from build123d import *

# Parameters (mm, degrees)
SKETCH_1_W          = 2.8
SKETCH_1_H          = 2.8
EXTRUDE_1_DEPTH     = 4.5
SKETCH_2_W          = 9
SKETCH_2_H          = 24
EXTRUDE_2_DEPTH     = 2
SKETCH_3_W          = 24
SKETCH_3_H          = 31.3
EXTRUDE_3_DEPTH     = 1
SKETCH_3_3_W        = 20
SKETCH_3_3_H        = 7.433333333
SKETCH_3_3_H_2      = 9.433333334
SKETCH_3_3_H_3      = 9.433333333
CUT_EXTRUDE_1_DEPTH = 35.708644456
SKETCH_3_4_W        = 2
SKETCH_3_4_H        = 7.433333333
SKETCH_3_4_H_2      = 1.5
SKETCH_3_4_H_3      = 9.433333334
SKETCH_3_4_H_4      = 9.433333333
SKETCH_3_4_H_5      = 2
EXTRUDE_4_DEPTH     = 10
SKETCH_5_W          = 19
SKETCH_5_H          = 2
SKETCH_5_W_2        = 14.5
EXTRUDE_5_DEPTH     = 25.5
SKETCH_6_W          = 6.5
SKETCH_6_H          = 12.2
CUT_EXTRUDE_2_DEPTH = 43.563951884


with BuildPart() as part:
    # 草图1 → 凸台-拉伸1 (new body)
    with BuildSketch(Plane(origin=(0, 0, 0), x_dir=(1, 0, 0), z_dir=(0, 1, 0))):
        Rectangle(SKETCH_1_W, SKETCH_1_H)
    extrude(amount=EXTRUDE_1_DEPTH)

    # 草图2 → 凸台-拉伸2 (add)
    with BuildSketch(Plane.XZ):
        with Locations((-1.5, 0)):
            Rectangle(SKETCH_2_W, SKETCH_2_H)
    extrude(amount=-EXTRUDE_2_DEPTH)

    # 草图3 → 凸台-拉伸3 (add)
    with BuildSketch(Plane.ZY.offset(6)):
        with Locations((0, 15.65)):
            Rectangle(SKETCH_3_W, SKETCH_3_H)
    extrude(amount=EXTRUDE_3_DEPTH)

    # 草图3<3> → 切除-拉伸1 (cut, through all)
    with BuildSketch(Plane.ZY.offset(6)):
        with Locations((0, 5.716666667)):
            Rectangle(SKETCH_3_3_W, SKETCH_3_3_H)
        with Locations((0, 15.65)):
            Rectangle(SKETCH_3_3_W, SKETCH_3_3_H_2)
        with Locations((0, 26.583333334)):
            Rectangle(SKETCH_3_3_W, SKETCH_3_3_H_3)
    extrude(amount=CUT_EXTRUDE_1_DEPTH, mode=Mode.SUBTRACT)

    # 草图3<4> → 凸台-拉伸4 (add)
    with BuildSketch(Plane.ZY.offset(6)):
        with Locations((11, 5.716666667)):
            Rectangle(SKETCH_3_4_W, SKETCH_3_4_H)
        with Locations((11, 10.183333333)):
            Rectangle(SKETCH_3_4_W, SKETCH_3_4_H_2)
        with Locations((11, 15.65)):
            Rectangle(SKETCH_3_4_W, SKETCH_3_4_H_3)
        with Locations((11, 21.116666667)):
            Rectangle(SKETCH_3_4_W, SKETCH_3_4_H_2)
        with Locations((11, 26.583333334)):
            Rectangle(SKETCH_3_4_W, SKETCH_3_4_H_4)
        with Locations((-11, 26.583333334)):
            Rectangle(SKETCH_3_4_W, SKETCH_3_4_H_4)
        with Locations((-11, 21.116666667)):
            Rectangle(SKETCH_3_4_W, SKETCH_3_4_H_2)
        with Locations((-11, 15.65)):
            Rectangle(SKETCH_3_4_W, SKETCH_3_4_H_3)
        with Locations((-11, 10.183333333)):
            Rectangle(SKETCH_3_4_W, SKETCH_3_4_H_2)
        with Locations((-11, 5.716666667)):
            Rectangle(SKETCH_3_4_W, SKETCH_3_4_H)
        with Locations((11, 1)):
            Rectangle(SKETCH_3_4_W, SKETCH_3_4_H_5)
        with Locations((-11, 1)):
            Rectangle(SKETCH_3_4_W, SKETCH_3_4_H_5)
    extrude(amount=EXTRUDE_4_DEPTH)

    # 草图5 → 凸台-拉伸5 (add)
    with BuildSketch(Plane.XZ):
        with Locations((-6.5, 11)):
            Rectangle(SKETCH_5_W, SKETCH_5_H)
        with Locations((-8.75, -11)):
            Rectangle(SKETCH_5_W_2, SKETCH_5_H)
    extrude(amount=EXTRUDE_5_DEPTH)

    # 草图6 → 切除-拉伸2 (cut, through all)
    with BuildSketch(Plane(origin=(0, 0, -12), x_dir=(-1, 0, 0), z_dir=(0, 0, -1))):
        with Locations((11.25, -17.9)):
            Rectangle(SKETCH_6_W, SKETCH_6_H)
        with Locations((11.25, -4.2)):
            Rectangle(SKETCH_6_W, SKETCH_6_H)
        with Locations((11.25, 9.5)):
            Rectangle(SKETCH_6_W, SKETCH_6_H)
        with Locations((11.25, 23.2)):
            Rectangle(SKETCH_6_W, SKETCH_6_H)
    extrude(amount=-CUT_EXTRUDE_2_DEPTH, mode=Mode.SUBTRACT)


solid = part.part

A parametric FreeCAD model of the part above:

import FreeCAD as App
import Part
import Sketcher
from FreeCAD import Vector
Q = App.Units.Quantity

doc = App.newDocument("Part")
params = doc.addObject("Spreadsheet::Sheet", "Params")
for row, (alias, value) in enumerate([
    ("sketch1_width", "2.8 mm"),
    ("pad1_length", "4.5 mm"),
    ("sketch2_width", "9 mm"),
    ("sketch2_height", "24 mm"),
    ("pad2_length", "2 mm"),
    ("sketch3_height", "24 mm"),
    ("sketch3_width", "31.3 mm"),
    ("pad3_length", "1 mm"),
    ("sketch4_height", "20 mm"),
    ("sketch5_height", "2 mm"),
    ("sketch5_width", "31.3 mm"),
    ("pad4_length", "10 mm"),
    ("sketch6_width", "19 mm"),
    ("sketch6_height", "2 mm"),
    ("sketch6_width2", "14.5 mm"),
    ("pad5_length", "25.5 mm"),
    ("sketch7_width", "6.5 mm"),
    ("sketch7_height", "12.2 mm"),
], start=1):
    params.set(f"A{row}", alias)
    params.set(f"B{row}", "=" + value)
    params.setAlias(f"B{row}", alias)

body = doc.addObject("PartDesign::Body", "Body")

# Sketch on XZ plane
sketch1 = body.newObject("Sketcher::SketchObject", "Sketch")
sketch1.AttachmentSupport = (doc.getObject("XZ_Plane"), [""])
sketch1.MapMode = "FlatFace"
sketch1.addGeometry(Part.LineSegment(Vector(-1.4, -1.4, 0), Vector(-1.4, 1.4, 0)), False)
sketch1.addGeometry(Part.LineSegment(Vector(-1.4, 1.4, 0), Vector(1.4, 1.4, 0)), False)
sketch1.addGeometry(Part.LineSegment(Vector(1.4, 1.4, 0), Vector(1.4, -1.4, 0)), False)
sketch1.addGeometry(Part.LineSegment(Vector(1.4, -1.4, 0), Vector(-1.4, -1.4, 0)), False)
sketch1.addConstraint(Sketcher.Constraint("Coincident", 0, 2, 1, 1))
sketch1.addConstraint(Sketcher.Constraint("Coincident", 1, 2, 2, 1))
sketch1.addConstraint(Sketcher.Constraint("Coincident", 2, 2, 3, 1))
sketch1.addConstraint(Sketcher.Constraint("Coincident", 3, 2, 0, 1))
sketch1.addConstraint(Sketcher.Constraint("Vertical", 0))
sketch1.addConstraint(Sketcher.Constraint("Horizontal", 1))
sketch1.addConstraint(Sketcher.Constraint("Vertical", 2))
sketch1.addConstraint(Sketcher.Constraint("Horizontal", 3))
sketch1.addConstraint(Sketcher.Constraint("Symmetric", 0, 2, 2, 2, -1, 1))
sketch1.addConstraint(Sketcher.Constraint("Equal", 3, 0))
sketch1.addConstraint(Sketcher.Constraint("DistanceX", 1, 1, 1, 2, Q("2.8 mm")))
sketch1.setExpression("Constraints[10]", "Params.sketch1_width")
pad1 = body.newObject("PartDesign::Pad", "Pad")
pad1.Profile = sketch1
pad1.setExpression("Length", "Params.pad1_length")
pad1.Reversed = True

# Sketch on XZ plane
sketch2 = body.newObject("Sketcher::SketchObject", "Sketch001")
sketch2.AttachmentSupport = (doc.getObject("XZ_Plane"), [""])
sketch2.MapMode = "FlatFace"
sketch2.addGeometry(Part.LineSegment(Vector(-6, 12, 0), Vector(-6, -12, 0)), False)
sketch2.addGeometry(Part.LineSegment(Vector(-6, -12, 0), Vector(3, -12, 0)), False)
sketch2.addGeometry(Part.LineSegment(Vector(3, -12, 0), Vector(3, 12, 0)), False)
sketch2.addGeometry(Part.LineSegment(Vector(3, 12, 0), Vector(-6, 12, 0)), False)
sketch2.addConstraint(Sketcher.Constraint("Coincident", 0, 2, 1, 1))
sketch2.addConstraint(Sketcher.Constraint("Coincident", 1, 2, 2, 1))
sketch2.addConstraint(Sketcher.Constraint("Coincident", 2, 2, 3, 1))
sketch2.addConstraint(Sketcher.Constraint("Coincident", 3, 2, 0, 1))
sketch2.addConstraint(Sketcher.Constraint("Vertical", 0))
sketch2.addConstraint(Sketcher.Constraint("Horizontal", 1))
sketch2.addConstraint(Sketcher.Constraint("Vertical", 2))
sketch2.addConstraint(Sketcher.Constraint("Horizontal", 3))
sketch2.addConstraint(Sketcher.Constraint("DistanceX", 1, 1, 1, 2, Q("9 mm")))
sketch2.addConstraint(Sketcher.Constraint("DistanceY", 0, 2, 0, 1, Q("24 mm")))
sketch2.addConstraint(Sketcher.Constraint("DistanceX", 0, 2, -1, 1, Q("6 mm")))
sketch2.addConstraint(Sketcher.Constraint("DistanceY", 0, 2, -1, 1, Q("12 mm")))
sketch2.setExpression("Constraints[8]", "Params.sketch2_width")
sketch2.setExpression("Constraints[9]", "Params.sketch2_height")
pad2 = body.newObject("PartDesign::Pad", "Pad001")
pad2.Profile = sketch2
pad2.setExpression("Length", "Params.pad2_length")
pad2.Reversed = True

# Sketch on YZ plane
sketch3 = body.newObject("Sketcher::SketchObject", "Sketch002")
sketch3.AttachmentSupport = (doc.getObject("YZ_Plane"), [""])
sketch3.MapMode = "FlatFace"
sketch3.AttachmentOffset = App.Placement(Vector(0, 0, -6), App.Rotation())
sketch3.addGeometry(Part.LineSegment(Vector(31.3, -12, 0), Vector(0, -12, 0)), False)
sketch3.addGeometry(Part.LineSegment(Vector(0, -12, 0), Vector(0, 12, 0)), False)
sketch3.addGeometry(Part.LineSegment(Vector(0, 12, 0), Vector(31.3, 12, 0)), False)
sketch3.addGeometry(Part.LineSegment(Vector(31.3, 12, 0), Vector(31.3, -12, 0)), False)
sketch3.addConstraint(Sketcher.Constraint("Coincident", 0, 2, 1, 1))
sketch3.addConstraint(Sketcher.Constraint("Coincident", 1, 2, 2, 1))
sketch3.addConstraint(Sketcher.Constraint("Coincident", 2, 2, 3, 1))
sketch3.addConstraint(Sketcher.Constraint("Coincident", 3, 2, 0, 1))
sketch3.addConstraint(Sketcher.Constraint("Horizontal", 0))
sketch3.addConstraint(Sketcher.Constraint("Vertical", 1))
sketch3.addConstraint(Sketcher.Constraint("Horizontal", 2))
sketch3.addConstraint(Sketcher.Constraint("Vertical", 3))
sketch3.addConstraint(Sketcher.Constraint("Symmetric", 0, 2, 1, 2, -1, 1))
sketch3.addConstraint(Sketcher.Constraint("DistanceY", 1, 1, 1, 2, Q("24 mm")))
sketch3.addConstraint(Sketcher.Constraint("DistanceX", 0, 2, 0, 1, Q("31.3 mm")))
sketch3.setExpression("Constraints[9]", "Params.sketch3_height")
sketch3.setExpression("Constraints[10]", "Params.sketch3_width")
pad3 = body.newObject("PartDesign::Pad", "Pad002")
pad3.Profile = sketch3
pad3.setExpression("Length", "Params.pad3_length")
pad3.Reversed = True

# Sketch on YZ plane
sketch4 = body.newObject("Sketcher::SketchObject", "Sketch003")
sketch4.AttachmentSupport = (doc.getObject("YZ_Plane"), [""])
sketch4.MapMode = "FlatFace"
sketch4.AttachmentOffset = App.Placement(Vector(0, 0, -6), App.Rotation())
sketch4.addGeometry(Part.LineSegment(Vector(9.433333, -10, 0), Vector(2, -10, 0)), False)
sketch4.addGeometry(Part.LineSegment(Vector(2, -10, 0), Vector(2, 10, 0)), False)
sketch4.addGeometry(Part.LineSegment(Vector(2, 10, 0), Vector(9.433333, 10, 0)), False)
sketch4.addGeometry(Part.LineSegment(Vector(9.433333, 10, 0), Vector(9.433333, -10, 0)), False)
sketch4.addGeometry(Part.LineSegment(Vector(20.366667, -10, 0), Vector(10.933333, -10, 0)), False)
sketch4.addGeometry(Part.LineSegment(Vector(10.933333, -10, 0), Vector(10.933333, 10, 0)), False)
sketch4.addGeometry(Part.LineSegment(Vector(10.933333, 10, 0), Vector(20.366667, 10, 0)), False)
sketch4.addGeometry(Part.LineSegment(Vector(20.366667, 10, 0), Vector(20.366667, -10, 0)), False)
sketch4.addGeometry(Part.LineSegment(Vector(31.3, -10, 0), Vector(21.866667, -10, 0)), False)
sketch4.addGeometry(Part.LineSegment(Vector(21.866667, -10, 0), Vector(21.866667, 10, 0)), False)
sketch4.addGeometry(Part.LineSegment(Vector(21.866667, 10, 0), Vector(31.3, 10, 0)), False)
sketch4.addGeometry(Part.LineSegment(Vector(31.3, 10, 0), Vector(31.3, -10, 0)), False)
sketch4.addConstraint(Sketcher.Constraint("Coincident", 0, 2, 1, 1))
sketch4.addConstraint(Sketcher.Constraint("Coincident", 1, 2, 2, 1))
sketch4.addConstraint(Sketcher.Constraint("Coincident", 2, 2, 3, 1))
sketch4.addConstraint(Sketcher.Constraint("Coincident", 3, 2, 0, 1))
sketch4.addConstraint(Sketcher.Constraint("Coincident", 4, 2, 5, 1))
sketch4.addConstraint(Sketcher.Constraint("Coincident", 5, 2, 6, 1))
sketch4.addConstraint(Sketcher.Constraint("Coincident", 6, 2, 7, 1))
sketch4.addConstraint(Sketcher.Constraint("Coincident", 7, 2, 4, 1))
sketch4.addConstraint(Sketcher.Constraint("Coincident", 8, 2, 9, 1))
sketch4.addConstraint(Sketcher.Constraint("Coincident", 9, 2, 10, 1))
sketch4.addConstraint(Sketcher.Constraint("Coincident", 10, 2, 11, 1))
sketch4.addConstraint(Sketcher.Constraint("Coincident", 11, 2, 8, 1))
sketch4.addConstraint(Sketcher.Constraint("Horizontal", 0))
sketch4.addConstraint(Sketcher.Constraint("Vertical", 1))
sketch4.addConstraint(Sketcher.Constraint("Horizontal", 2))
sketch4.addConstraint(Sketcher.Constraint("Vertical", 3))
sketch4.addConstraint(Sketcher.Constraint("Horizontal", 4))
sketch4.addConstraint(Sketcher.Constraint("Vertical", 5))
sketch4.addConstraint(Sketcher.Constraint("Horizontal", 6))
sketch4.addConstraint(Sketcher.Constraint("Vertical", 7))
sketch4.addConstraint(Sketcher.Constraint("Horizontal", 8))
sketch4.addConstraint(Sketcher.Constraint("Vertical", 9))
sketch4.addConstraint(Sketcher.Constraint("Horizontal", 10))
sketch4.addConstraint(Sketcher.Constraint("Vertical", 11))
sketch4.addConstraint(Sketcher.Constraint("Horizontal", 3, 2, 4, 2))
sketch4.addConstraint(Sketcher.Constraint("Horizontal", 2, 2, 5, 2))
sketch4.addConstraint(Sketcher.Constraint("Horizontal", 7, 2, 8, 2))
sketch4.addConstraint(Sketcher.Constraint("Horizontal", 6, 2, 9, 2))
sketch4.addConstraint(Sketcher.Constraint("Equal", 6, 8))
sketch4.addConstraint(Sketcher.Constraint("DistanceY", 1, 1, 1, 2, Q("20 mm")))
sketch4.addConstraint(Sketcher.Constraint("DistanceX", -1, 1, 0, 2, Q("2 mm")))
sketch4.addConstraint(Sketcher.Constraint("DistanceY", 0, 2, -1, 1, Q("10 mm")))
sketch4.addConstraint(Sketcher.Constraint("DistanceX", -1, 1, 10, 2, Q("31.3 mm")))
sketch4.addConstraint(Sketcher.Constraint("DistanceX", 3, 2, 4, 2, Q("1.5 mm")))
sketch4.addConstraint(Sketcher.Constraint("DistanceX", 7, 2, 8, 2, Q("1.5 mm")))
sketch4.addConstraint(Sketcher.Constraint("DistanceX", 0, 2, 0, 1, Q("7.433333 mm")))
sketch4.setExpression("Constraints[29]", "Params.sketch4_height")
pocket1 = body.newObject("PartDesign::Pocket", "Pocket")
pocket1.Profile = sketch4
pocket1.Type = "ThroughAll"

# Sketch on YZ plane
sketch5 = body.newObject("Sketcher::SketchObject", "Sketch004")
sketch5.AttachmentSupport = (doc.getObject("YZ_Plane"), [""])
sketch5.MapMode = "FlatFace"
sketch5.AttachmentOffset = App.Placement(Vector(0, 0, -6), App.Rotation())
sketch5.addGeometry(Part.LineSegment(Vector(31.3, 12, 0), Vector(31.3, 10, 0)), False)
sketch5.addGeometry(Part.LineSegment(Vector(31.3, 10, 0), Vector(0, 10, 0)), False)
sketch5.addGeometry(Part.LineSegment(Vector(0, 10, 0), Vector(0, 12, 0)), False)
sketch5.addGeometry(Part.LineSegment(Vector(0, 12, 0), Vector(31.3, 12, 0)), False)
sketch5.addGeometry(Part.LineSegment(Vector(31.3, -12, 0), Vector(0, -12, 0)), False)
sketch5.addGeometry(Part.LineSegment(Vector(0, -12, 0), Vector(0, -10, 0)), False)
sketch5.addGeometry(Part.LineSegment(Vector(0, -10, 0), Vector(31.3, -10, 0)), False)
sketch5.addGeometry(Part.LineSegment(Vector(31.3, -10, 0), Vector(31.3, -12, 0)), False)
sketch5.addConstraint(Sketcher.Constraint("Coincident", 0, 2, 1, 1))
sketch5.addConstraint(Sketcher.Constraint("Coincident", 1, 2, 2, 1))
sketch5.addConstraint(Sketcher.Constraint("Coincident", 2, 2, 3, 1))
sketch5.addConstraint(Sketcher.Constraint("Coincident", 3, 2, 0, 1))
sketch5.addConstraint(Sketcher.Constraint("Coincident", 4, 2, 5, 1))
sketch5.addConstraint(Sketcher.Constraint("Coincident", 5, 2, 6, 1))
sketch5.addConstraint(Sketcher.Constraint("Coincident", 6, 2, 7, 1))
sketch5.addConstraint(Sketcher.Constraint("Coincident", 7, 2, 4, 1))
sketch5.addConstraint(Sketcher.Constraint("Vertical", 0))
sketch5.addConstraint(Sketcher.Constraint("Horizontal", 1))
sketch5.addConstraint(Sketcher.Constraint("Vertical", 2))
sketch5.addConstraint(Sketcher.Constraint("Horizontal", 3))
sketch5.addConstraint(Sketcher.Constraint("Horizontal", 4))
sketch5.addConstraint(Sketcher.Constraint("Vertical", 5))
sketch5.addConstraint(Sketcher.Constraint("Horizontal", 6))
sketch5.addConstraint(Sketcher.Constraint("Vertical", 7))
sketch5.addConstraint(Sketcher.Constraint("Symmetric", 2, 2, 4, 2, -1, 1))
sketch5.addConstraint(Sketcher.Constraint("Symmetric", 1, 2, 5, 2, -1))
sketch5.addConstraint(Sketcher.Constraint("Vertical", 3, 2, 6, 2))
sketch5.addConstraint(Sketcher.Constraint("DistanceY", 0, 2, 0, 1, Q("2 mm")))
sketch5.addConstraint(Sketcher.Constraint("DistanceX", 1, 2, 1, 1, Q("31.3 mm")))
sketch5.addConstraint(Sketcher.Constraint("DistanceY", -1, 1, 0, 2, Q("10 mm")))
sketch5.setExpression("Constraints[19]", "Params.sketch5_height")
sketch5.setExpression("Constraints[20]", "Params.sketch5_width")
pad4 = body.newObject("PartDesign::Pad", "Pad003")
pad4.Profile = sketch5
pad4.setExpression("Length", "Params.pad4_length")
pad4.Reversed = True

# Sketch on XZ plane
sketch6 = body.newObject("Sketcher::SketchObject", "Sketch005")
sketch6.AttachmentSupport = (doc.getObject("XZ_Plane"), [""])
sketch6.MapMode = "FlatFace"
sketch6.addGeometry(Part.LineSegment(Vector(-16, 12, 0), Vector(-16, 10, 0)), False)
sketch6.addGeometry(Part.LineSegment(Vector(-16, 10, 0), Vector(3, 10, 0)), False)
sketch6.addGeometry(Part.LineSegment(Vector(3, 10, 0), Vector(3, 12, 0)), False)
sketch6.addGeometry(Part.LineSegment(Vector(3, 12, 0), Vector(-16, 12, 0)), False)
sketch6.addGeometry(Part.LineSegment(Vector(-16, -10, 0), Vector(-16, -12, 0)), False)
sketch6.addGeometry(Part.LineSegment(Vector(-16, -12, 0), Vector(-1.5, -12, 0)), False)
sketch6.addGeometry(Part.LineSegment(Vector(-1.5, -12, 0), Vector(-1.5, -10, 0)), False)
sketch6.addGeometry(Part.LineSegment(Vector(-1.5, -10, 0), Vector(-16, -10, 0)), False)
sketch6.addConstraint(Sketcher.Constraint("Coincident", 0, 2, 1, 1))
sketch6.addConstraint(Sketcher.Constraint("Coincident", 1, 2, 2, 1))
sketch6.addConstraint(Sketcher.Constraint("Coincident", 2, 2, 3, 1))
sketch6.addConstraint(Sketcher.Constraint("Coincident", 3, 2, 0, 1))
sketch6.addConstraint(Sketcher.Constraint("Coincident", 4, 2, 5, 1))
sketch6.addConstraint(Sketcher.Constraint("Coincident", 5, 2, 6, 1))
sketch6.addConstraint(Sketcher.Constraint("Coincident", 6, 2, 7, 1))
sketch6.addConstraint(Sketcher.Constraint("Coincident", 7, 2, 4, 1))
sketch6.addConstraint(Sketcher.Constraint("Vertical", 0))
sketch6.addConstraint(Sketcher.Constraint("Horizontal", 1))
sketch6.addConstraint(Sketcher.Constraint("Vertical", 2))
sketch6.addConstraint(Sketcher.Constraint("Horizontal", 3))
sketch6.addConstraint(Sketcher.Constraint("Vertical", 4))
sketch6.addConstraint(Sketcher.Constraint("Horizontal", 5))
sketch6.addConstraint(Sketcher.Constraint("Vertical", 6))
sketch6.addConstraint(Sketcher.Constraint("Horizontal", 7))
sketch6.addConstraint(Sketcher.Constraint("Symmetric", 3, 2, 4, 2, -1))
sketch6.addConstraint(Sketcher.Constraint("Equal", 2, 4))
sketch6.addConstraint(Sketcher.Constraint("DistanceX", 1, 1, 1, 2, Q("19 mm")))
sketch6.addConstraint(Sketcher.Constraint("DistanceY", 0, 2, 0, 1, Q("2 mm")))
sketch6.addConstraint(Sketcher.Constraint("DistanceX", 5, 1, 5, 2, Q("14.5 mm")))
sketch6.addConstraint(Sketcher.Constraint("DistanceX", 0, 2, -1, 1, Q("16 mm")))
sketch6.addConstraint(Sketcher.Constraint("DistanceY", -1, 1, 0, 2, Q("10 mm")))
sketch6.setExpression("Constraints[18]", "Params.sketch6_width")
sketch6.setExpression("Constraints[19]", "Params.sketch6_height")
sketch6.setExpression("Constraints[20]", "Params.sketch6_width2")
pad5 = body.newObject("PartDesign::Pad", "Pad004")
pad5.Profile = sketch6
pad5.setExpression("Length", "Params.pad5_length")

# Sketch on XY plane
sketch7 = body.newObject("Sketcher::SketchObject", "Sketch006")
sketch7.AttachmentSupport = (doc.getObject("XY_Plane"), [""])
sketch7.MapMode = "FlatFace"
sketch7.AttachmentOffset = App.Placement(Vector(0, 0, -12), App.Rotation())
sketch7.addGeometry(Part.LineSegment(Vector(-8, -11.8, 0), Vector(-8, -24, 0)), False)
sketch7.addGeometry(Part.LineSegment(Vector(-8, -24, 0), Vector(-14.5, -24, 0)), False)
sketch7.addGeometry(Part.LineSegment(Vector(-14.5, -24, 0), Vector(-14.5, -11.8, 0)), False)
sketch7.addGeometry(Part.LineSegment(Vector(-14.5, -11.8, 0), Vector(-8, -11.8, 0)), False)
sketch7.addGeometry(Part.LineSegment(Vector(-8, 1.9, 0), Vector(-8, -10.3, 0)), False)
sketch7.addGeometry(Part.LineSegment(Vector(-8, -10.3, 0), Vector(-14.5, -10.3, 0)), False)
sketch7.addGeometry(Part.LineSegment(Vector(-14.5, -10.3, 0), Vector(-14.5, 1.9, 0)), False)
sketch7.addGeometry(Part.LineSegment(Vector(-14.5, 1.9, 0), Vector(-8, 1.9, 0)), False)
sketch7.addGeometry(Part.LineSegment(Vector(-8, 15.6, 0), Vector(-8, 3.4, 0)), False)
sketch7.addGeometry(Part.LineSegment(Vector(-8, 3.4, 0), Vector(-14.5, 3.4, 0)), False)
sketch7.addGeometry(Part.LineSegment(Vector(-14.5, 3.4, 0), Vector(-14.5, 15.6, 0)), False)
sketch7.addGeometry(Part.LineSegment(Vector(-14.5, 15.6, 0), Vector(-8, 15.6, 0)), False)
sketch7.addGeometry(Part.LineSegment(Vector(-8, 29.3, 0), Vector(-8, 17.1, 0)), False)
sketch7.addGeometry(Part.LineSegment(Vector(-8, 17.1, 0), Vector(-14.5, 17.1, 0)), False)
sketch7.addGeometry(Part.LineSegment(Vector(-14.5, 17.1, 0), Vector(-14.5, 29.3, 0)), False)
sketch7.addGeometry(Part.LineSegment(Vector(-14.5, 29.3, 0), Vector(-8, 29.3, 0)), False)
sketch7.addConstraint(Sketcher.Constraint("Coincident", 0, 2, 1, 1))
sketch7.addConstraint(Sketcher.Constraint("Coincident", 1, 2, 2, 1))
sketch7.addConstraint(Sketcher.Constraint("Coincident", 2, 2, 3, 1))
sketch7.addConstraint(Sketcher.Constraint("Coincident", 3, 2, 0, 1))
sketch7.addConstraint(Sketcher.Constraint("Coincident", 4, 2, 5, 1))
sketch7.addConstraint(Sketcher.Constraint("Coincident", 5, 2, 6, 1))
sketch7.addConstraint(Sketcher.Constraint("Coincident", 6, 2, 7, 1))
sketch7.addConstraint(Sketcher.Constraint("Coincident", 7, 2, 4, 1))
sketch7.addConstraint(Sketcher.Constraint("Coincident", 8, 2, 9, 1))
sketch7.addConstraint(Sketcher.Constraint("Coincident", 9, 2, 10, 1))
sketch7.addConstraint(Sketcher.Constraint("Coincident", 10, 2, 11, 1))
sketch7.addConstraint(Sketcher.Constraint("Coincident", 11, 2, 8, 1))
sketch7.addConstraint(Sketcher.Constraint("Coincident", 12, 2, 13, 1))
sketch7.addConstraint(Sketcher.Constraint("Coincident", 13, 2, 14, 1))
sketch7.addConstraint(Sketcher.Constraint("Coincident", 14, 2, 15, 1))
sketch7.addConstraint(Sketcher.Constraint("Coincident", 15, 2, 12, 1))
sketch7.addConstraint(Sketcher.Constraint("Vertical", 0))
sketch7.addConstraint(Sketcher.Constraint("Horizontal", 1))
sketch7.addConstraint(Sketcher.Constraint("Vertical", 2))
sketch7.addConstraint(Sketcher.Constraint("Horizontal", 3))
sketch7.addConstraint(Sketcher.Constraint("Vertical", 4))
sketch7.addConstraint(Sketcher.Constraint("Horizontal", 5))
sketch7.addConstraint(Sketcher.Constraint("Vertical", 6))
sketch7.addConstraint(Sketcher.Constraint("Horizontal", 7))
sketch7.addConstraint(Sketcher.Constraint("Vertical", 8))
sketch7.addConstraint(Sketcher.Constraint("Horizontal", 9))
sketch7.addConstraint(Sketcher.Constraint("Vertical", 10))
sketch7.addConstraint(Sketcher.Constraint("Horizontal", 11))
sketch7.addConstraint(Sketcher.Constraint("Vertical", 12))
sketch7.addConstraint(Sketcher.Constraint("Horizontal", 13))
sketch7.addConstraint(Sketcher.Constraint("Vertical", 14))
sketch7.addConstraint(Sketcher.Constraint("Horizontal", 15))
sketch7.addConstraint(Sketcher.Constraint("Vertical", 3, 2, 4, 2))
sketch7.addConstraint(Sketcher.Constraint("Vertical", 2, 2, 5, 2))
sketch7.addConstraint(Sketcher.Constraint("Vertical", 7, 2, 8, 2))
sketch7.addConstraint(Sketcher.Constraint("Vertical", 6, 2, 9, 2))
sketch7.addConstraint(Sketcher.Constraint("Vertical", 11, 2, 12, 2))
sketch7.addConstraint(Sketcher.Constraint("Vertical", 10, 2, 13, 2))
sketch7.addConstraint(Sketcher.Constraint("Equal", 2, 4))
sketch7.addConstraint(Sketcher.Constraint("Equal", 6, 8))
sketch7.addConstraint(Sketcher.Constraint("Equal", 10, 12))
sketch7.addConstraint(Sketcher.Constraint("DistanceX", 1, 2, 1, 1, Q("6.5 mm")))
sketch7.addConstraint(Sketcher.Constraint("DistanceY", 0, 2, 0, 1, Q("12.2 mm")))
sketch7.addConstraint(Sketcher.Constraint("DistanceX", 0, 2, -1, 1, Q("8 mm")))
sketch7.addConstraint(Sketcher.Constraint("DistanceY", 0, 2, -1, 1, Q("24 mm")))
sketch7.addConstraint(Sketcher.Constraint("DistanceY", 4, 2, -1, 1, Q("10.3 mm")))
sketch7.addConstraint(Sketcher.Constraint("DistanceY", -1, 1, 8, 2, Q("3.4 mm")))
sketch7.addConstraint(Sketcher.Constraint("DistanceY", -1, 1, 12, 2, Q("17.1 mm")))
sketch7.setExpression("Constraints[41]", "Params.sketch7_width")
sketch7.setExpression("Constraints[42]", "Params.sketch7_height")
pocket2 = body.newObject("PartDesign::Pocket", "Pocket001")
pocket2.Profile = sketch7
pocket2.Type = "ThroughAll"
pocket2.Reversed = True

doc.recompute()
